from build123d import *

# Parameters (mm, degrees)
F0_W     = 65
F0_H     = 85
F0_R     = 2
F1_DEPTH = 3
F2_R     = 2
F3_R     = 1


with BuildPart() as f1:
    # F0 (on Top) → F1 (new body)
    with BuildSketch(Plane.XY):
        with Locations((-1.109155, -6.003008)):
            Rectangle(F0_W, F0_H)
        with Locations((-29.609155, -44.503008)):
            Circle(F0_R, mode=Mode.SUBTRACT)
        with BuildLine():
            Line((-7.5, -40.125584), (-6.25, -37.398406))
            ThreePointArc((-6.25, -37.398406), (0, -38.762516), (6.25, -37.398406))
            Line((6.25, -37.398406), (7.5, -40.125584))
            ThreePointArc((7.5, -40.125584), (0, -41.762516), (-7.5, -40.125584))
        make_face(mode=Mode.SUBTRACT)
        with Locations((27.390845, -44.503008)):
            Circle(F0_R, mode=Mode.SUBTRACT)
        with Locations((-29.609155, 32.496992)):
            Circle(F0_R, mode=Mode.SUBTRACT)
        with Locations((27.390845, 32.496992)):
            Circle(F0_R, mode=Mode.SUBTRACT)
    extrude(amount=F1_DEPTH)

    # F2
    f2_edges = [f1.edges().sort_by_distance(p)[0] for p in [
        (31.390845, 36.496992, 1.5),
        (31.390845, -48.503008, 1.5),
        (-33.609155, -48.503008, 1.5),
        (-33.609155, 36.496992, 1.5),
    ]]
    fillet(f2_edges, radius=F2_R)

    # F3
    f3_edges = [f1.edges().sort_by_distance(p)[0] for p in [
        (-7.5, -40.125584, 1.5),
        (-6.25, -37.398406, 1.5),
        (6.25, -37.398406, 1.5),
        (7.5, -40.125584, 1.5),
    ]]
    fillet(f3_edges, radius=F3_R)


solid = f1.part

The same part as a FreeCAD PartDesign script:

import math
import FreeCAD as App
import Part
import Sketcher
from FreeCAD import Vector


def edges_at(feature, points):
    """Names of the edges that pass closest to the given points."""
    edges = feature.Shape.Edges
    near = lambda p: min(range(len(edges)), key=lambda i: edges[i].distToShape(Part.Vertex(*p))[0])
    return sorted({f"Edge{near(p) + 1}" for p in points})


def add_polygon(sketch, points):
    """Adds a closed chain of lines whose ends are joined by coincident constraints."""
    first, n = sketch.GeometryCount, len(points)
    for a, b in zip(points, points[1:] + points[:1]):
        sketch.addGeometry(Part.LineSegment(App.Vector(*a, 0), App.Vector(*b, 0)), False)
    for i in range(n):
        sketch.addConstraint(Sketcher.Constraint("Coincident", first + i, 2, first + (i + 1) % n, 1))

doc = App.newDocument("Part")
body = doc.addObject("PartDesign::Body", "Body")

# Sketch on XY plane
sketch1 = body.newObject("Sketcher::SketchObject", "Sketch")
sketch1.AttachmentSupport = (doc.getObject("XY_Plane"), [""])
sketch1.MapMode = "FlatFace"
add_polygon(sketch1, [(-33.609155, 36.496992), (-33.609155, -48.503008), (31.390845, -48.503008), (31.390845, 36.496992)])  # lines 0-3
sketch1.addGeometry(Part.Circle(Vector(-29.609155, -44.503008, 0), Vector(0, 0, 1), 2), False)  # 4
sketch1.addGeometry(Part.ArcOfCircle(Part.Circle(Vector(0, -23.762518, 0), Vector(0, 0, 1), 17.999998), math.radians(-114.624321), math.radians(-65.375679)), False)  # 5
sketch1.addGeometry(Part.LineSegment(Vector(-7.5, -40.125584, 0), Vector(-6.25, -37.398406, 0)), False)  # 6
sketch1.addGeometry(Part.ArcOfCircle(Part.Circle(Vector(0, -23.762517, 0), Vector(0, 0, 1), 14.999999), math.radians(-114.624321), math.radians(-65.375679)), False)  # 7
sketch1.addGeometry(Part.LineSegment(Vector(6.25, -37.398406, 0), Vector(7.5, -40.125584, 0)), False)  # 8
sketch1.addGeometry(Part.Circle(Vector(27.390845, -44.503008, 0), Vector(0, 0, 1), 2), False)  # 9
sketch1.addGeometry(Part.Circle(Vector(-29.609155, 32.496992, 0), Vector(0, 0, 1), 2), False)  # 10
sketch1.addGeometry(Part.Circle(Vector(27.390845, 32.496992, 0), Vector(0, 0, 1), 2), False)  # 11
sketch1.addConstraint([
    Sketcher.Constraint("Coincident", 5, 1, 6, 1),
    Sketcher.Constraint("Coincident", 6, 2, 7, 1),
    Sketcher.Constraint("Coincident", 7, 2, 8, 1),
    Sketcher.Constraint("Coincident", 8, 2, 5, 2),
    Sketcher.Constraint("Vertical", 0),
    Sketcher.Constraint("Horizontal", 1),
    Sketcher.Constraint("Vertical", 2),
    Sketcher.Constraint("Horizontal", 3),
    Sketcher.Constraint("Coincident", 7, 3, 5, 3),
    Sketcher.Constraint("Equal", 4, 9),
    Sketcher.Constraint("Equal", 9, 10),
    Sketcher.Constraint("Equal", 10, 11),
    Sketcher.Constraint("Symmetric", 6, 2, 7, 2, -2),
    Sketcher.Constraint("Horizontal", 4, 3, 9, 3),
    Sketcher.Constraint("Horizontal", 10, 3, 11, 3),
    Sketcher.Constraint("Horizontal", 5, 1, 8, 2),
    Sketcher.Constraint("Vertical", 4, 3, 10, 3),
    Sketcher.Constraint("Vertical", 9, 3, 11, 3),
    Sketcher.Constraint("Diameter", 4, 4.0),
    Sketcher.Constraint("Radius", 5, 17.999998),
    Sketcher.Constraint("Radius", 7, 14.999999),
    Sketcher.Constraint("DistanceX", 1, 1, 1, 2, 65.0),
    Sketcher.Constraint("DistanceY", 0, 2, 0, 1, 85.0),
    Sketcher.Constraint("DistanceX", 4, 3, 9, 3, 57.0),
    Sketcher.Constraint("DistanceY", 4, 3, 10, 3, 77.0),
    Sketcher.Constraint("DistanceX", 0, 2, 4, 3, 4.0),
    Sketcher.Constraint("DistanceY", 0, 2, 4, 3, 4.0),
    Sketcher.Constraint("DistanceX", 5, 1, 8, 2, 15.0),
    Sketcher.Constraint("DistanceX", 6, 2, 7, 2, 12.5),
    Sketcher.Constraint("DistanceY", 9, 3, 7, 2, 7.104602),
    Sketcher.Constraint("DistanceX", 4, 3, -1, 1, 29.609155),
    Sketcher.Constraint("DistanceY", 4, 3, -1, 1, 44.503008),
])
pad1 = body.newObject("PartDesign::Pad", "Pad")
pad1.Profile = sketch1
pad1.Length = 3
doc.recompute()

fillet = body.newObject("PartDesign::Fillet", "Fillet")
fillet.Base = (pad1, edges_at(pad1, [
    (31.391, 36.497, 1.5),
    (31.391, -48.503, 1.5),
    (-33.609, -48.503, 1.5),
    (-33.609, 36.497, 1.5),
]))
fillet.Radius = 2
doc.recompute()

fillet2 = body.newObject("PartDesign::Fillet", "Fillet001")
fillet2.Base = (fillet, edges_at(fillet, [
    (-7.5, -40.126, 1.5),
    (-6.25, -37.398, 1.5),
    (6.25, -37.398, 1.5),
    (7.5, -40.126, 1.5),
]))
fillet2.Radius = 1

doc.recompute()
